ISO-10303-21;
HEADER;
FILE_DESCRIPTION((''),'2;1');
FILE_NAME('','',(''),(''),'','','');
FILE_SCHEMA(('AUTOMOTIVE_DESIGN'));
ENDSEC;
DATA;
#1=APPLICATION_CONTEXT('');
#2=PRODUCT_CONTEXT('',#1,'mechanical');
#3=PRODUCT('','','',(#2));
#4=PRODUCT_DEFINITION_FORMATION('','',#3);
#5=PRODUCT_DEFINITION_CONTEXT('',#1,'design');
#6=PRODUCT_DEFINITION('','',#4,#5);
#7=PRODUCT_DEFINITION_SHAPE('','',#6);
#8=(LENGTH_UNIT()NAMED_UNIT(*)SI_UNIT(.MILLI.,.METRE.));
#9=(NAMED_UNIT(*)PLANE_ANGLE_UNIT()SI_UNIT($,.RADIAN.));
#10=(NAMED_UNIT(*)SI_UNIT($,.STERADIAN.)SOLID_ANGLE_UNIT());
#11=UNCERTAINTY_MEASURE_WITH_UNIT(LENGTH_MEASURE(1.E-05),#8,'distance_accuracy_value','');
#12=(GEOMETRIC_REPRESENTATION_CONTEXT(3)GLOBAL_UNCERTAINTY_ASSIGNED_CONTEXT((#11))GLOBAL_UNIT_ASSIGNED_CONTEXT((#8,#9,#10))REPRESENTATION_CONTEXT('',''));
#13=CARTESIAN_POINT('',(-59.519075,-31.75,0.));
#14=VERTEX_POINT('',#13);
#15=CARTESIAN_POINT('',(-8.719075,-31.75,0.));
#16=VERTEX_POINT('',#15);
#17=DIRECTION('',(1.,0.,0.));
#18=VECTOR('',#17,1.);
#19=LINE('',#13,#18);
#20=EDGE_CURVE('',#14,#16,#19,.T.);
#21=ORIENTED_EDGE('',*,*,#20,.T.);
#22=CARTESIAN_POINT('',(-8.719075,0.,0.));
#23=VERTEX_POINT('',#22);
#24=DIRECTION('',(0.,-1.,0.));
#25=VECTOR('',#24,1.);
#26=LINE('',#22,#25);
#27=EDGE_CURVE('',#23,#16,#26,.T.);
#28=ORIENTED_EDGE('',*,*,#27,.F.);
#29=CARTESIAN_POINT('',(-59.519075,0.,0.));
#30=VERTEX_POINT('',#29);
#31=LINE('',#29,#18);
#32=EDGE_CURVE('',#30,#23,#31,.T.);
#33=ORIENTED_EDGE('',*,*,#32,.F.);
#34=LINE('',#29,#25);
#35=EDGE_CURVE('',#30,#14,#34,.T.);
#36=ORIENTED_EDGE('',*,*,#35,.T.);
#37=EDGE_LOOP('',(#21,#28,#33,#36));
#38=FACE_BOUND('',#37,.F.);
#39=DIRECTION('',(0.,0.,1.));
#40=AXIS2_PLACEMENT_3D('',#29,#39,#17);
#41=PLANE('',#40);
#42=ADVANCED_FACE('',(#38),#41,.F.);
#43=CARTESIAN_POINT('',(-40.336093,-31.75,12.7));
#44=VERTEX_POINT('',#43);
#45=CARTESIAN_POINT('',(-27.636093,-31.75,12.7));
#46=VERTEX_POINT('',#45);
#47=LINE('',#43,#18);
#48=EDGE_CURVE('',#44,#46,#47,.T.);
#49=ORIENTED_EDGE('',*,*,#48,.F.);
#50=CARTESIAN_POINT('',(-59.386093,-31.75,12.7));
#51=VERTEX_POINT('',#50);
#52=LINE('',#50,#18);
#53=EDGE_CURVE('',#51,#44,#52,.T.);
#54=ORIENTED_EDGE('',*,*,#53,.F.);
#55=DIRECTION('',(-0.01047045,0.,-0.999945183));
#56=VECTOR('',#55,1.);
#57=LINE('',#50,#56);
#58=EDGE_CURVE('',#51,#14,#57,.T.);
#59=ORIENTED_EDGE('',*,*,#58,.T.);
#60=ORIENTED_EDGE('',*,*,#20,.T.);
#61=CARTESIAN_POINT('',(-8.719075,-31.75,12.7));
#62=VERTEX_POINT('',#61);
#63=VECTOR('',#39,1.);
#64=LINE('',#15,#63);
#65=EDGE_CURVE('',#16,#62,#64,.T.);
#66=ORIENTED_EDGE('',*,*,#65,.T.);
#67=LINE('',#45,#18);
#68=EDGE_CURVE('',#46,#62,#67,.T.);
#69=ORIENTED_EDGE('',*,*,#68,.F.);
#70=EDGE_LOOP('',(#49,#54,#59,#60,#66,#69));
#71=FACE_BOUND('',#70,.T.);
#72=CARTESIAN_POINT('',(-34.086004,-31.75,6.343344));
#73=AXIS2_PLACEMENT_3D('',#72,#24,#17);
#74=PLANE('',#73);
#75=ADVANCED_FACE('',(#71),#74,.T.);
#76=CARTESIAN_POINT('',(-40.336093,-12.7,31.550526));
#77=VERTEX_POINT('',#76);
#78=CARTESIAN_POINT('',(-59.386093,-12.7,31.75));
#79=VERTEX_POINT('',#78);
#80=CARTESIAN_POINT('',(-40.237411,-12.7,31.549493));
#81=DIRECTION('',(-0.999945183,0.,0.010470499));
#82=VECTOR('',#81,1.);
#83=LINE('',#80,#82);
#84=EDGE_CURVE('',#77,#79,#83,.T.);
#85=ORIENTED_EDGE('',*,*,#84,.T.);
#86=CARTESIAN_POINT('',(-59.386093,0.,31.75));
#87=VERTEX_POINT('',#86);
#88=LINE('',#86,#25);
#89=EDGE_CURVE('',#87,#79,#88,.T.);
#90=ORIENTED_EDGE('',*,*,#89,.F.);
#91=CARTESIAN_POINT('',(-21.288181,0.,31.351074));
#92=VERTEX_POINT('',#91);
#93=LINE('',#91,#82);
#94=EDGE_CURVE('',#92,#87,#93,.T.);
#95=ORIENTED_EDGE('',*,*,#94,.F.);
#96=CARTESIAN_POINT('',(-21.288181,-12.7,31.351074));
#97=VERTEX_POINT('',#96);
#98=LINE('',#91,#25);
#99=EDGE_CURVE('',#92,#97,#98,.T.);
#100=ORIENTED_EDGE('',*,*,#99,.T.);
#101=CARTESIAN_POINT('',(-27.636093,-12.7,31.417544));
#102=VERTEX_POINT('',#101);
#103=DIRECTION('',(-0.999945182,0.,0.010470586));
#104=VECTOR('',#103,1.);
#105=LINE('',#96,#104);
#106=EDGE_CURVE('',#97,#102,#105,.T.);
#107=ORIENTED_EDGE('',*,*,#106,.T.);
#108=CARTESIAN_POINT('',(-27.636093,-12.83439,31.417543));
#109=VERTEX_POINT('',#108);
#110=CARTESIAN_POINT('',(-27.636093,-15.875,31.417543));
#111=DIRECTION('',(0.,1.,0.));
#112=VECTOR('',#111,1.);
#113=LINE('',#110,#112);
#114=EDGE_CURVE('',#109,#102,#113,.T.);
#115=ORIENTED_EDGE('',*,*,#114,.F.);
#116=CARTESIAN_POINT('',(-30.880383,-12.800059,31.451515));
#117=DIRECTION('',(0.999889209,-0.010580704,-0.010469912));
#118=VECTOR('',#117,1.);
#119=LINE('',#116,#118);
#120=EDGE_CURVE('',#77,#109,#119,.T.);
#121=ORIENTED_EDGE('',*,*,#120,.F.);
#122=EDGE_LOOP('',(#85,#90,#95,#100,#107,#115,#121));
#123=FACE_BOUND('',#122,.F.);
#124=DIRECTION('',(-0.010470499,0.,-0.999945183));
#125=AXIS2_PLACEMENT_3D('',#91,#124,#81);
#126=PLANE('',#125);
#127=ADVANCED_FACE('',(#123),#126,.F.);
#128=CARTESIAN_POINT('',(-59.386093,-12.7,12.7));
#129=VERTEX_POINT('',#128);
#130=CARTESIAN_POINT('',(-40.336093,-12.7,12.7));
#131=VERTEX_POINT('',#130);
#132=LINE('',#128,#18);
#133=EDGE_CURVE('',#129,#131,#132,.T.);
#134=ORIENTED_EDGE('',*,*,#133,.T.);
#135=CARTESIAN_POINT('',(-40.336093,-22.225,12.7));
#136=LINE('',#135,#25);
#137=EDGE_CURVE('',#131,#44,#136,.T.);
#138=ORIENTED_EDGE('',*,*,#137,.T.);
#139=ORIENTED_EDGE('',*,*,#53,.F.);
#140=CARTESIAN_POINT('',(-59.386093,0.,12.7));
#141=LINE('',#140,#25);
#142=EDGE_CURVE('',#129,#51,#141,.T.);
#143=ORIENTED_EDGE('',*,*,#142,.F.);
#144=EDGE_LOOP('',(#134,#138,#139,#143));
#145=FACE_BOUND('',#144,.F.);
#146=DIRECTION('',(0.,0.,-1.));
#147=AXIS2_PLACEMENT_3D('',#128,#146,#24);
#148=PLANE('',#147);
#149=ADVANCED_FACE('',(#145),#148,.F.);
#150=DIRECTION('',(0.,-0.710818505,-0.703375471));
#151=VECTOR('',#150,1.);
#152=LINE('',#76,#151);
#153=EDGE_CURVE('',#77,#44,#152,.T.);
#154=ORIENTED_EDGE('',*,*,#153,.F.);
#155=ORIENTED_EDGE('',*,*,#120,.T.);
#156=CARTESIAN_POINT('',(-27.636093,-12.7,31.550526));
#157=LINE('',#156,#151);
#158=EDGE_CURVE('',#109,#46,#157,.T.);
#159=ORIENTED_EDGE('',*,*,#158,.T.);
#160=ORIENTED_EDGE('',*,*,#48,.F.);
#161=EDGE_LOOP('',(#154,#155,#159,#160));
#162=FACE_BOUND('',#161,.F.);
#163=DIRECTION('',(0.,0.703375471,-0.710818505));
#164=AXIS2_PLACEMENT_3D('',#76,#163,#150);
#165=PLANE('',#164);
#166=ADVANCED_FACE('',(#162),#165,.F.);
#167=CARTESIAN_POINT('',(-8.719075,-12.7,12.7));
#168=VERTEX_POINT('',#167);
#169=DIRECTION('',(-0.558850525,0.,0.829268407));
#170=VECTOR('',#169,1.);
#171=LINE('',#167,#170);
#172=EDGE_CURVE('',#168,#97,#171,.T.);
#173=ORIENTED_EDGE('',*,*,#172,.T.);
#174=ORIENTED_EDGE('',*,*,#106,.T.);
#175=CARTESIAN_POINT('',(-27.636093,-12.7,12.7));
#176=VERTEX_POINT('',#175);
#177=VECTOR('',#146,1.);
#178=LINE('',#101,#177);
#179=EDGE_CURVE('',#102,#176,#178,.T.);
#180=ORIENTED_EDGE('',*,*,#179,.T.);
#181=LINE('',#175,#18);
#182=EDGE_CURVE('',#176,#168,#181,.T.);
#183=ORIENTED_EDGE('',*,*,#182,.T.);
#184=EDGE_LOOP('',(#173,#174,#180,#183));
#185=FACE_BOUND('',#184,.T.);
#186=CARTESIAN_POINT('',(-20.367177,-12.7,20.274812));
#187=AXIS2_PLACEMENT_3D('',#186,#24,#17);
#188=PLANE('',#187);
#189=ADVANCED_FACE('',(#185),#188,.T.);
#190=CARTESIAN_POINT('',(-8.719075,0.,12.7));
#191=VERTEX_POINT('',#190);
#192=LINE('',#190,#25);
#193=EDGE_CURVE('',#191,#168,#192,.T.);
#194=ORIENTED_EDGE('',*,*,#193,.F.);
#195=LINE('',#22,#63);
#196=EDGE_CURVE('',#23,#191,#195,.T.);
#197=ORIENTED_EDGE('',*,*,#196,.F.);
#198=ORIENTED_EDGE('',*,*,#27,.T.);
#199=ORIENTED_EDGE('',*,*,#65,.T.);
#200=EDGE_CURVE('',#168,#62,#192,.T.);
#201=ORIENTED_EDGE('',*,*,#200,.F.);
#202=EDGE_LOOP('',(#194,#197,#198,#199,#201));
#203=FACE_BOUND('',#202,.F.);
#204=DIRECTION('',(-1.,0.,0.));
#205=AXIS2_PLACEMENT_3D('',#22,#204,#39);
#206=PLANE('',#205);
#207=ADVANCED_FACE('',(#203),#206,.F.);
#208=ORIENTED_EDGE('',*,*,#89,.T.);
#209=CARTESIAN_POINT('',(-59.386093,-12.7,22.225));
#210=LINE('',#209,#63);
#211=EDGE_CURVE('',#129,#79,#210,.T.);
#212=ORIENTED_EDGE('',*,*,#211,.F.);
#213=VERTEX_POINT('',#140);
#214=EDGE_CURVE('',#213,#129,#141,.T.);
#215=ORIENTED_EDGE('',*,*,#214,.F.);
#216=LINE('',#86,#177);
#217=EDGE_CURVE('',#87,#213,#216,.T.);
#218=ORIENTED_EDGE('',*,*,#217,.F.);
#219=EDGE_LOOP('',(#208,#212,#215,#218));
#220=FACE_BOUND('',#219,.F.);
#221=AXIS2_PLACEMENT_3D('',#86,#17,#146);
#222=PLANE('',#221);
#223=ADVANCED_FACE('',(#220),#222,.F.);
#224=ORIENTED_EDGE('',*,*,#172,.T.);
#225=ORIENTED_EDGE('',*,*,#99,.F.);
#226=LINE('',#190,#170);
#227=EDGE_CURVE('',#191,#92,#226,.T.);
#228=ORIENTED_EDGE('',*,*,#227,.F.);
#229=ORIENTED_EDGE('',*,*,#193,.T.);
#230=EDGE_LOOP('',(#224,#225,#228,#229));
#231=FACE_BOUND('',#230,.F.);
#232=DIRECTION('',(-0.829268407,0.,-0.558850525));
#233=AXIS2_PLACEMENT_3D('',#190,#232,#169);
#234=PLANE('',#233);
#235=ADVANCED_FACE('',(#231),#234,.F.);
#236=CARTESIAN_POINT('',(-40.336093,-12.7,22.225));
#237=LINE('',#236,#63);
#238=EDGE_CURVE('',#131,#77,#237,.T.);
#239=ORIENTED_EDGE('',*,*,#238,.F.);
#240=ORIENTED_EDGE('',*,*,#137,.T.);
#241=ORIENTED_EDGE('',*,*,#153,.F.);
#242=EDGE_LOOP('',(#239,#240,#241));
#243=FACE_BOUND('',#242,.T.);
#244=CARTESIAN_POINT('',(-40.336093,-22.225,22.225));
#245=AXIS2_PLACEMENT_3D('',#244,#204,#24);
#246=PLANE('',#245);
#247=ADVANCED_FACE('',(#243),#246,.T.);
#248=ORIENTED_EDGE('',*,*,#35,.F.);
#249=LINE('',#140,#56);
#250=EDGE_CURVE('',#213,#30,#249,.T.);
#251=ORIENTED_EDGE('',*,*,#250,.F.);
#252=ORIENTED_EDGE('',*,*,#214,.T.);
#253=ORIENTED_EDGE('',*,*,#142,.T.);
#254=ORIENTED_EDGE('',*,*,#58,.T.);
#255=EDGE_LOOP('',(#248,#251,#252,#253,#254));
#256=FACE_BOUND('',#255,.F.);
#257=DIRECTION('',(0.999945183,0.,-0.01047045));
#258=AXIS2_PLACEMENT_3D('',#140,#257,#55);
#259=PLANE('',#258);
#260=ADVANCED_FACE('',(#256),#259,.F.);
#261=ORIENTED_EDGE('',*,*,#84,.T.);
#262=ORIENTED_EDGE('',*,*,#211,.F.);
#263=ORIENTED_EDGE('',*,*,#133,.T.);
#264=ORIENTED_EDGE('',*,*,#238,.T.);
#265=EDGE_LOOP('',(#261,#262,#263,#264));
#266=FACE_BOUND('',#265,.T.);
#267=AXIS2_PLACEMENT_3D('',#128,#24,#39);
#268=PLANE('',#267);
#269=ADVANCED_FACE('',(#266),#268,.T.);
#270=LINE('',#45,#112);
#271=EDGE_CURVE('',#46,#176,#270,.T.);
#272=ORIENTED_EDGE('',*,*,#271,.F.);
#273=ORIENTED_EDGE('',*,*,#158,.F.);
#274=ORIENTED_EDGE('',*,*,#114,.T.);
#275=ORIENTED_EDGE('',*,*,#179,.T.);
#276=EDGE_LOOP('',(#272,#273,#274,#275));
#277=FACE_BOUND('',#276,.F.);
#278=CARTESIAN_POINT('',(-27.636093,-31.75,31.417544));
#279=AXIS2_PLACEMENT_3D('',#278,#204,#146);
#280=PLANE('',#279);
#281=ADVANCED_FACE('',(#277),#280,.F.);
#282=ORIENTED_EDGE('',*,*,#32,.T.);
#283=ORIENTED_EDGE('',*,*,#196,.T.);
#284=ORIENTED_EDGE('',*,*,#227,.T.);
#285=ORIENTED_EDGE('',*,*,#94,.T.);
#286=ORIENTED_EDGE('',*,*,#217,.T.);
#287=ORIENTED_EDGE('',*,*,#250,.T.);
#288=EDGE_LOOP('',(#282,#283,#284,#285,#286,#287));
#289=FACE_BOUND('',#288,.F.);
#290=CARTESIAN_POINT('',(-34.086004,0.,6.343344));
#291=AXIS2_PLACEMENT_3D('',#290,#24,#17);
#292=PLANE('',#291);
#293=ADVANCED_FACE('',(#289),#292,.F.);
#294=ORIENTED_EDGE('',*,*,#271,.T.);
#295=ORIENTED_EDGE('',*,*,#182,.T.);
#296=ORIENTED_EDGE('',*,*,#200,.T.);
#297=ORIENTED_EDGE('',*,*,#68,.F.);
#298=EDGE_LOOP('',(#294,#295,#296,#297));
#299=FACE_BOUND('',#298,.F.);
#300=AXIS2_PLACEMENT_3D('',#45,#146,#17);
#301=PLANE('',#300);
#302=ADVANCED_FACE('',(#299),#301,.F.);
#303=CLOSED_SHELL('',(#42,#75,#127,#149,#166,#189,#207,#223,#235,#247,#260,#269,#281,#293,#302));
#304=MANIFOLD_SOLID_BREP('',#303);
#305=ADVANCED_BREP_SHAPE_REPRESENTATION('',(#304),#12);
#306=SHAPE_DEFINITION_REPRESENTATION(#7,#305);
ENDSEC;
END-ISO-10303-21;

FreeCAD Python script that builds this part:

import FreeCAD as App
import Part
import Sketcher
from FreeCAD import Vector
Q = App.Units.Quantity

doc = App.newDocument("Part")
params = doc.addObject("Spreadsheet::Sheet", "Params")
for row, (alias, value) in enumerate([
    ("sketch1_width", "2 in"),
    ("sketch1_height", "0.5 in"),
    ("sketch1_length", "1.5 in"),
    ("sketch1_height2", "0.75 in"),
    ("pad1_length", "1.25 in"),
    ("sketch2_width", "0.75 in"),
    ("pocket1_length", "0.75 in"),
    ("sketch3_width", "0.75 in"),
    ("pocket2_length", "0.5 in"),
    ("pocket3_length", "0.75 in"),
], start=1):
    params.set(f"A{row}", alias)
    params.set(f"B{row}", "=" + value)
    params.setAlias(f"B{row}", alias)

body = doc.addObject("PartDesign::Body", "Body")

sketch1 = body.newObject("Sketcher::SketchObject", "Sketch")
sketch1.AttachmentSupport = (doc.getObject("XZ_Plane"), [""])
sketch1.MapMode = "FlatFace"
sketch1.addGeometry(Part.LineSegment(Vector(-59, 13, 0), Vector(-60, 0, 0)), False)
sketch1.addGeometry(Part.LineSegment(Vector(-60, 0, 0), Vector(-9, 0, 0)), False)
sketch1.addGeometry(Part.LineSegment(Vector(-9, 0, 0), Vector(-9, 13, 0)), False)
sketch1.addGeometry(Part.LineSegment(Vector(-9, 13, 0), Vector(-21, 31, 0)), False)
sketch1.addGeometry(Part.LineSegment(Vector(-21, 31, 0), Vector(-59, 32, 0)), False)
sketch1.addGeometry(Part.LineSegment(Vector(-59, 32, 0), Vector(-59, 13, 0)), False)
sketch1.addConstraint(Sketcher.Constraint("Coincident", 0, 2, 1, 1))
sketch1.addConstraint(Sketcher.Constraint("Coincident", 1, 2, 2, 1))
sketch1.addConstraint(Sketcher.Constraint("Coincident", 2, 2, 3, 1))
sketch1.addConstraint(Sketcher.Constraint("Coincident", 3, 2, 4, 1))
sketch1.addConstraint(Sketcher.Constraint("Coincident", 4, 2, 5, 1))
sketch1.addConstraint(Sketcher.Constraint("Coincident", 5, 2, 0, 1))
sketch1.addConstraint(Sketcher.Constraint("Horizontal", 1))
sketch1.addConstraint(Sketcher.Constraint("Vertical", 2))
sketch1.addConstraint(Sketcher.Constraint("Vertical", 5))
sketch1.addConstraint(Sketcher.Constraint("PointOnObject", 0, 2, -1))
sketch1.addConstraint(Sketcher.Constraint("Perpendicular", 0, 4))
sketch1.addConstraint(Sketcher.Constraint("Horizontal", 2, 2, 5, 2))
sketch1.addConstraint(Sketcher.Constraint("DistanceX", 1, 1, 1, 2, Q("2 in")))
sketch1.addConstraint(Sketcher.Constraint("DistanceY", 2, 1, 2, 2, Q("0.5 in")))
sketch1.addConstraint(Sketcher.Constraint("Distance", 4, Q("1.5 in")))
sketch1.addConstraint(Sketcher.Constraint("DistanceY", 5, 2, 5, 1, Q("0.75 in")))
sketch1.addConstraint(Sketcher.Constraint("DistanceX", 3, 2, -1, 1, 21.288181))
sketch1.addConstraint(Sketcher.Constraint("DistanceX", 0, 2, 4, 2, 0.132982))
sketch1.setExpression("Constraints[12]", "Params.sketch1_width")
sketch1.setExpression("Constraints[13]", "Params.sketch1_height")
sketch1.setExpression("Constraints[14]", "Params.sketch1_length")
sketch1.setExpression("Constraints[15]", "Params.sketch1_height2")
pad1 = body.newObject("PartDesign::Pad", "Pad")
pad1.Profile = sketch1
pad1.setExpression("Length", "Params.pad1_length")

sketch2 = body.newObject("Sketcher::SketchObject", "Sketch001")
sketch2.AttachmentSupport = (doc.getObject("YZ_Plane"), [""])
sketch2.MapMode = "FlatFace"
sketch2.AttachmentOffset = App.Placement(Vector(0, 0, -59.386093), App.Rotation())
sketch2.addGeometry(Part.LineSegment(Vector(-13, 32, 0), Vector(-13, 13, 0)), False)
sketch2.addGeometry(Part.LineSegment(Vector(-13, 13, 0), Vector(-32, 13, 0)), False)
sketch2.addGeometry(Part.LineSegment(Vector(-32, 13, 0), Vector(-32, 32, 0)), False)
sketch2.addGeometry(Part.LineSegment(Vector(-32, 32, 0), Vector(-13, 32, 0)), False)
sketch2.addConstraint(Sketcher.Constraint("Coincident", 0, 2, 1, 1))
sketch2.addConstraint(Sketcher.Constraint("Coincident", 1, 2, 2, 1))
sketch2.addConstraint(Sketcher.Constraint("Coincident", 2, 2, 3, 1))
sketch2.addConstraint(Sketcher.Constraint("Coincident", 3, 2, 0, 1))
sketch2.addConstraint(Sketcher.Constraint("Vertical", 0))
sketch2.addConstraint(Sketcher.Constraint("Horizontal", 1))
sketch2.addConstraint(Sketcher.Constraint("Vertical", 2))
sketch2.addConstraint(Sketcher.Constraint("Horizontal", 3))
sketch2.addConstraint(Sketcher.Constraint("Equal", 3, 0))
sketch2.addConstraint(Sketcher.Constraint("DistanceX", 1, 2, 1, 1, Q("0.75 in")))
sketch2.addConstraint(Sketcher.Constraint("DistanceX", 0, 2, -1, 1, Q("0.5 in")))
sketch2.addConstraint(Sketcher.Constraint("DistanceY", -1, 1, 0, 2, Q("0.5 in")))
sketch2.setExpression("Constraints[9]", "Params.sketch2_width")
pocket1 = body.newObject("PartDesign::Pocket", "Pocket")
pocket1.Profile = sketch2
pocket1.setExpression("Length", "Params.pocket1_length")
pocket1.Reversed = True

sketch3 = body.newObject("Sketcher::SketchObject", "Sketch002")
sketch3.AttachmentSupport = (doc.getObject("YZ_Plane"), [""])
sketch3.MapMode = "FlatFace"
sketch3.AttachmentOffset = App.Placement(Vector(0, 0, -40.336093), App.Rotation())
sketch3.addGeometry(Part.LineSegment(Vector(-13, 32, 0), Vector(-32, 13, 0)), False)
sketch3.addGeometry(Part.LineSegment(Vector(-32, 13, 0), Vector(-32, 32, 0)), False)
sketch3.addGeometry(Part.LineSegment(Vector(-32, 32, 0), Vector(-13, 32, 0)), False)
sketch3.addConstraint(Sketcher.Constraint("Coincident", 0, 2, 1, 1))
sketch3.addConstraint(Sketcher.Constraint("Coincident", 1, 2, 2, 1))
sketch3.addConstraint(Sketcher.Constraint("Coincident", 2, 2, 0, 1))
sketch3.addConstraint(Sketcher.Constraint("Vertical", 1))
sketch3.addConstraint(Sketcher.Constraint("Horizontal", 2))
sketch3.addConstraint(Sketcher.Constraint("DistanceX", 2, 1, 2, 2, Q("0.75 in")))
sketch3.addConstraint(Sketcher.Constraint("DistanceY", -1, 1, 0, 2, Q("0.5 in")))
sketch3.addConstraint(Sketcher.Constraint("DistanceX", 2, 2, -1, 1, Q("0.5 in")))
sketch3.addConstraint(Sketcher.Constraint("Distance", 0, 26.80009))
sketch3.setExpression("Constraints[5]", "Params.sketch3_width")
pocket2 = body.newObject("PartDesign::Pocket", "Pocket001")
pocket2.Profile = sketch3
pocket2.setExpression("Length", "Params.pocket2_length")
pocket2.Reversed = True

sketch4 = body.newObject("Sketcher::SketchObject", "Sketch003")
sketch4.AttachmentSupport = (doc.getObject("XZ_Plane"), [""])
sketch4.MapMode = "FlatFace"
sketch4.AttachmentOffset = App.Placement(Vector(0, 0, 1.25 * 25.4), App.Rotation())
sketch4.addGeometry(Part.LineSegment(Vector(-28, 31, 0), Vector(-28, 13, 0)), False)
sketch4.addGeometry(Part.LineSegment(Vector(-28, 13, 0), Vector(-9, 13, 0)), False)
sketch4.addGeometry(Part.LineSegment(Vector(-9, 13, 0), Vector(-21, 31, 0)), False)
sketch4.addGeometry(Part.LineSegment(Vector(-21, 31, 0), Vector(-28, 31, 0)), False)
sketch4.addConstraint(Sketcher.Constraint("Coincident", 0, 2, 1, 1))
sketch4.addConstraint(Sketcher.Constraint("Coincident", 1, 2, 2, 1))
sketch4.addConstraint(Sketcher.Constraint("Coincident", 2, 2, 3, 1))
sketch4.addConstraint(Sketcher.Constraint("Coincident", 3, 2, 0, 1))
sketch4.addConstraint(Sketcher.Constraint("Vertical", 0))
sketch4.addConstraint(Sketcher.Constraint("Horizontal", 1))
sketch4.addConstraint(Sketcher.Constraint("DistanceY", -1, 1, 0, 2, Q("0.5 in")))
sketch4.addConstraint(Sketcher.Constraint("Distance", 3, 6.34826))
sketch4.addConstraint(Sketcher.Constraint("DistanceX", 1, 1, 1, 2, 18.917018))
sketch4.addConstraint(Sketcher.Constraint("DistanceY", 0, 2, 0, 1, 18.717544))
sketch4.addConstraint(Sketcher.Constraint("DistanceX", 2, 2, -1, 1, 21.288181))
sketch4.addConstraint(Sketcher.Constraint("DistanceX", 0, 2, 2, 2, 6.347912))
pocket3 = body.newObject("PartDesign::Pocket", "Pocket002")
pocket3.Profile = sketch4
pocket3.setExpression("Length", "Params.pocket3_length")

doc.recompute()
